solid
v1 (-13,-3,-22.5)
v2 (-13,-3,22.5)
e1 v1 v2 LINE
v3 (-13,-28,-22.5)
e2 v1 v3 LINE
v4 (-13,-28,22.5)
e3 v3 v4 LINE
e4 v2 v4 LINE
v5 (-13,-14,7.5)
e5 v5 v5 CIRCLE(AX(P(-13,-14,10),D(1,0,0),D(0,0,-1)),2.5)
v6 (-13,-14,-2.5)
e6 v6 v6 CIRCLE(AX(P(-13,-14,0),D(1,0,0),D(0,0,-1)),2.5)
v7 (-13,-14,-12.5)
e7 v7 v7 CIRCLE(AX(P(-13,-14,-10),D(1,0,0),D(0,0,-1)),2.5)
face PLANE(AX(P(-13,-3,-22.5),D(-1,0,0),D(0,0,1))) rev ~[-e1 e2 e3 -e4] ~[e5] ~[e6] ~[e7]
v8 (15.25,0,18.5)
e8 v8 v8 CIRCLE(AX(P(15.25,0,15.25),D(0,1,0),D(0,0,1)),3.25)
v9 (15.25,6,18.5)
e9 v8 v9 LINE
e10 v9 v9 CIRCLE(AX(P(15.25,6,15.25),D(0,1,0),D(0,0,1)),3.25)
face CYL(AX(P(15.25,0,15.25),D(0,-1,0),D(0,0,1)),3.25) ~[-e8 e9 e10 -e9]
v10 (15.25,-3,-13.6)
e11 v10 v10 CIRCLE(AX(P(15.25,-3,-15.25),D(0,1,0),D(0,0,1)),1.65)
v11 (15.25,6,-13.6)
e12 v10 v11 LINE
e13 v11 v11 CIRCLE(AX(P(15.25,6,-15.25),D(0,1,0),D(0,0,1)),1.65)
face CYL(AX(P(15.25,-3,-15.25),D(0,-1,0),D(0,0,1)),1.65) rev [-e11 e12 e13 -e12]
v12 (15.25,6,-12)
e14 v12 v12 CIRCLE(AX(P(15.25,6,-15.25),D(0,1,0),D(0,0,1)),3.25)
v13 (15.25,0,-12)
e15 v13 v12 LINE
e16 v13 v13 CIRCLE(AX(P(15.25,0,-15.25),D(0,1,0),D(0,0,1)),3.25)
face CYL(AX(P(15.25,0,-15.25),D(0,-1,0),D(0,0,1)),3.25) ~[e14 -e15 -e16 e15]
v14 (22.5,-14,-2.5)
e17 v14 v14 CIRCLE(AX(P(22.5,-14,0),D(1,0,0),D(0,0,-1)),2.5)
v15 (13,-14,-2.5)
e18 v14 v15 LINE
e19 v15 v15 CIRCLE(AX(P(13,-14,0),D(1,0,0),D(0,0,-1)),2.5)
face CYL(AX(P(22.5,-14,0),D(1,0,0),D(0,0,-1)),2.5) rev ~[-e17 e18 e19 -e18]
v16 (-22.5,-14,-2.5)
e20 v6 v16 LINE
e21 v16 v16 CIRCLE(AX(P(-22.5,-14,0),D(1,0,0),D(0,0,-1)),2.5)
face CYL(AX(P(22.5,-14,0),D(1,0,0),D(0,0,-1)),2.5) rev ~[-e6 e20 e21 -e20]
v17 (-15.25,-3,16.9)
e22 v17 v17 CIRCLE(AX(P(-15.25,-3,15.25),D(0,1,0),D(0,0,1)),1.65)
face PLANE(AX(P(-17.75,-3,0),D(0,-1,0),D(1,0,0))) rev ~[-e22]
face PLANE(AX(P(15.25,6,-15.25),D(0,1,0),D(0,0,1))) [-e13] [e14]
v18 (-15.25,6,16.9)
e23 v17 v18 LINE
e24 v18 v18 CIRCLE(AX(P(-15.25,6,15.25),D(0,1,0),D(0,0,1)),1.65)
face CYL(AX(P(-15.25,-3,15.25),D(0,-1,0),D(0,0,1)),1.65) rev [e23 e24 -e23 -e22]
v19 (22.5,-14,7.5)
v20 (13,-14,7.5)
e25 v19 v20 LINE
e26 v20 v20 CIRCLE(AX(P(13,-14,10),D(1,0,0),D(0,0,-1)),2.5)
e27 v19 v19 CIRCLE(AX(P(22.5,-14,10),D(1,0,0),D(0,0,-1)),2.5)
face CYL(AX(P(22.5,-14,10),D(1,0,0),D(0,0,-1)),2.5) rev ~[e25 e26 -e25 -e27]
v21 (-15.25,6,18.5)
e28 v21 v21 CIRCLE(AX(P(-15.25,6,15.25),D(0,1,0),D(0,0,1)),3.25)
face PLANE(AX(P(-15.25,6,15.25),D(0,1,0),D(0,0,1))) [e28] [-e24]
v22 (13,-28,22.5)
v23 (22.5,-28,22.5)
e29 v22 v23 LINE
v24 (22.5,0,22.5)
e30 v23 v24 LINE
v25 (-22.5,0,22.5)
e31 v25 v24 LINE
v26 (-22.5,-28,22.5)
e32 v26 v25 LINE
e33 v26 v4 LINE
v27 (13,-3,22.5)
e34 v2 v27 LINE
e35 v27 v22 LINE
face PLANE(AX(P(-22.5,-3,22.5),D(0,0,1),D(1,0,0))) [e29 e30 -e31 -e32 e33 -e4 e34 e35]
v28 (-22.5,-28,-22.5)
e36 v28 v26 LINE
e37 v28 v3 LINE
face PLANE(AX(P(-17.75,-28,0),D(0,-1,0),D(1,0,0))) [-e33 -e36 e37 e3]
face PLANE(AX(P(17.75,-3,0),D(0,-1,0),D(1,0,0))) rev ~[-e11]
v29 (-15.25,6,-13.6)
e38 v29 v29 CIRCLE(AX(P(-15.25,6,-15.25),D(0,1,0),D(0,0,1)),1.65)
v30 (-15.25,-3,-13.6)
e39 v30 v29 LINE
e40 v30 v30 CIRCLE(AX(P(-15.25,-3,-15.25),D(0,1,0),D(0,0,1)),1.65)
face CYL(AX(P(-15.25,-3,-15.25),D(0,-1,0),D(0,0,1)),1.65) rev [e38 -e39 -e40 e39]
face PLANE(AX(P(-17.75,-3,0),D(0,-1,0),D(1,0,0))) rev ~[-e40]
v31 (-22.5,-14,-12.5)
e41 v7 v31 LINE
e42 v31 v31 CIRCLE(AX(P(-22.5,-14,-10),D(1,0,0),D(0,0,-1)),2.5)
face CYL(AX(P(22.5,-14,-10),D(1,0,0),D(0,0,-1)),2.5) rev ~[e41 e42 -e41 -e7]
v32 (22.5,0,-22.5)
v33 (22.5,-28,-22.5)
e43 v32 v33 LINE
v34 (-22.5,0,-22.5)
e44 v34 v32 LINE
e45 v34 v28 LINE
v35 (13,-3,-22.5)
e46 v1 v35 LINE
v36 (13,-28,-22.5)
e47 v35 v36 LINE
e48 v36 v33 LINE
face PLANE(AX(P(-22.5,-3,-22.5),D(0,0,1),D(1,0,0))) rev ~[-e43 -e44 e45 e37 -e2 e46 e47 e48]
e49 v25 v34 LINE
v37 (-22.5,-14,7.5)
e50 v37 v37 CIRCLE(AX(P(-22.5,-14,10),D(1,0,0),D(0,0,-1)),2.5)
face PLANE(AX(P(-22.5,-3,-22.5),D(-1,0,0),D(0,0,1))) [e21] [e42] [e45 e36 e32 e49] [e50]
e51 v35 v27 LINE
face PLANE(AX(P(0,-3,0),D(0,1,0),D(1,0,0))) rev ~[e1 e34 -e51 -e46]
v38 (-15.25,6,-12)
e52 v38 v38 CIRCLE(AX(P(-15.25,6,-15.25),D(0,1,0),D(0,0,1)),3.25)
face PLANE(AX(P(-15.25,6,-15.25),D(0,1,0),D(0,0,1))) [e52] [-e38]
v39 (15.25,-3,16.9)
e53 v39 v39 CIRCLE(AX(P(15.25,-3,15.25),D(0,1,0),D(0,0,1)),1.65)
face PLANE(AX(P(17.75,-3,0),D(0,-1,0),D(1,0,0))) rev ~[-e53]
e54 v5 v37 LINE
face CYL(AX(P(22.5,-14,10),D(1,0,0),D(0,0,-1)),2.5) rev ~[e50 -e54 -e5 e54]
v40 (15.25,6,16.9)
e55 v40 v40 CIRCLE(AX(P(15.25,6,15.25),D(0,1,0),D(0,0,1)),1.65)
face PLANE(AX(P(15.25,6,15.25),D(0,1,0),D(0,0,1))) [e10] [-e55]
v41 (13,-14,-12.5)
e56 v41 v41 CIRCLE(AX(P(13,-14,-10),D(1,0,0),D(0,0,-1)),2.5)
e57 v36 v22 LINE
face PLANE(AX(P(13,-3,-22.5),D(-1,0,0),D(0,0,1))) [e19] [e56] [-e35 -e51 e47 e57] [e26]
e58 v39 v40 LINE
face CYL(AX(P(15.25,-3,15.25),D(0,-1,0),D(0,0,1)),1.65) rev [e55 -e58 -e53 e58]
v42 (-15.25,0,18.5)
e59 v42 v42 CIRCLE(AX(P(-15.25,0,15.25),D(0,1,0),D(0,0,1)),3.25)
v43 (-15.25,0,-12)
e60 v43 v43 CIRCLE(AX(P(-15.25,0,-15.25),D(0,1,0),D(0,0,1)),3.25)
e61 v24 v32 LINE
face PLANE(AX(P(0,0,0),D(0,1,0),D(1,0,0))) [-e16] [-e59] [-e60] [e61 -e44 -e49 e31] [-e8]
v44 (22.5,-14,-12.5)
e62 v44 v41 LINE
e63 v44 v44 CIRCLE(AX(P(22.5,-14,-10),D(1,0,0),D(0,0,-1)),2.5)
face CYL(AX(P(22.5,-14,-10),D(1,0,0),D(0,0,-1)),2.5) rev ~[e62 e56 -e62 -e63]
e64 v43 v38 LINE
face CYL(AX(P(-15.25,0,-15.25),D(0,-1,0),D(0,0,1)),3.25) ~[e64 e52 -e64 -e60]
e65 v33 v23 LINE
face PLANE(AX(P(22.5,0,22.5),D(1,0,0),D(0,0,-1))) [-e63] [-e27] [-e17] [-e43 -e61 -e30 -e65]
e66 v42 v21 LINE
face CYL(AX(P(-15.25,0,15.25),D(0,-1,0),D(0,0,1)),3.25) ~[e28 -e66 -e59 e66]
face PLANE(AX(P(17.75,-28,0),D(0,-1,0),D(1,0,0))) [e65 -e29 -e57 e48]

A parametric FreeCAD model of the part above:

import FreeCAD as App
import Part
import Sketcher

V = App.Vector
Q = App.Units.Quantity


def add_polygon(sketch, points):
    """Adds a closed chain of lines whose ends are joined by coincident constraints."""
    first, n = sketch.GeometryCount, len(points)
    for a, b in zip(points, points[1:] + points[:1]):
        sketch.addGeometry(Part.LineSegment(App.Vector(*a, 0), App.Vector(*b, 0)), False)
    for i in range(n):
        sketch.addConstraint(Sketcher.Constraint("Coincident", first + i, 2, first + (i + 1) % n, 1))

doc = App.newDocument("Part")
params = doc.addObject("Spreadsheet::Sheet", "Params")
for row, (alias, value) in enumerate([
    ("sketch1_diameter", "6.5 mm"),
    ("sketch1_diameter2", "3.3 mm"),
    ("pad1_length", "6 mm"),
    ("sketch2_diameter", "6.5 mm"),
    ("sketch2_diameter2", "3.3 mm"),
    ("pad2_length", "6 mm"),
    ("sketch3_diameter", "6.5 mm"),
    ("sketch3_diameter2", "3.3 mm"),
    ("pad3_length", "6 mm"),
    ("sketch4_diameter", "6.5 mm"),
    ("sketch4_diameter2", "3.3 mm"),
    ("pad4_length", "6 mm"),
    ("sketch5_width", "45 mm"),
    ("pad5_length", "3 mm"),
    ("sketch6_diameter", "3.3 mm"),
    ("pocket1_length", "3 mm"),
    ("sketch7_height", "45 mm"),
    ("sketch7_width", "9.5 mm"),
    ("pad6_length", "25 mm"),
    ("sketch8_diameter", "5 mm"),
], start=1):
    params.set(f"A{row}", alias)
    params.set(f"B{row}", "=" + value)
    params.setAlias(f"B{row}", alias)

body = doc.addObject("PartDesign::Body", "Body")

# Sketch on XZ plane
sketch1 = body.newObject("Sketcher::SketchObject", "Sketch")
sketch1.AttachmentSupport = (doc.getObject("XZ_Plane"), [""])
sketch1.MapMode = "FlatFace"
sketch1.addGeometry(Part.Circle(V(-15.25, -15.25, 0), V(0, 0, 1), 3.25), False)
sketch1.addGeometry(Part.Circle(V(-15.25, -15.25, 0), V(0, 0, 1), 1.65), False)
sketch1.addConstraint(Sketcher.Constraint("Coincident", 1, 3, 0, 3))
sketch1.addConstraint(Sketcher.Constraint("Diameter", 0, Q("6.5 mm")))
sketch1.addConstraint(Sketcher.Constraint("Diameter", 1, Q("3.3 mm")))
sketch1.addConstraint(Sketcher.Constraint("DistanceX", 0, 3, -1, 1, Q("15.25 mm")))
sketch1.addConstraint(Sketcher.Constraint("DistanceY", 0, 3, -1, 1, Q("15.25 mm")))
sketch1.setExpression("Constraints[1]", "Params.sketch1_diameter")
sketch1.setExpression("Constraints[2]", "Params.sketch1_diameter2")
pad1 = body.newObject("PartDesign::Pad", "Pad")
pad1.Profile = sketch1
pad1.setExpression("Length", "Params.pad1_length")
pad1.Reversed = True
body2 = doc.addObject("PartDesign::Body", "Body001")

# Sketch on XZ plane
sketch2 = body2.newObject("Sketcher::SketchObject", "Sketch001")
sketch2.AttachmentSupport = (doc.getObject("XZ_Plane001"), [""])
sketch2.MapMode = "FlatFace"
sketch2.addGeometry(Part.Circle(V(15.25, -15.25, 0), V(0, 0, 1), 3.25), False)
sketch2.addGeometry(Part.Circle(V(15.25, -15.25, 0), V(0, 0, 1), 1.65), False)
sketch2.addConstraint(Sketcher.Constraint("Coincident", 1, 3, 0, 3))
sketch2.addConstraint(Sketcher.Constraint("Diameter", 0, Q("6.5 mm")))
sketch2.addConstraint(Sketcher.Constraint("Diameter", 1, Q("3.3 mm")))
sketch2.addConstraint(Sketcher.Constraint("DistanceX", -1, 1, 0, 3, Q("15.25 mm")))
sketch2.addConstraint(Sketcher.Constraint("DistanceY", 0, 3, -1, 1, Q("15.25 mm")))
sketch2.setExpression("Constraints[1]", "Params.sketch2_diameter")
sketch2.setExpression("Constraints[2]", "Params.sketch2_diameter2")
pad2 = body2.newObject("PartDesign::Pad", "Pad001")
pad2.Profile = sketch2
pad2.setExpression("Length", "Params.pad2_length")
pad2.Reversed = True
body3 = doc.addObject("PartDesign::Body", "Body002")

# Sketch on XZ plane
sketch3 = body3.newObject("Sketcher::SketchObject", "Sketch002")
sketch3.AttachmentSupport = (doc.getObject("XZ_Plane002"), [""])
sketch3.MapMode = "FlatFace"
sketch3.addGeometry(Part.Circle(V(15.25, 15.25, 0), V(0, 0, 1), 3.25), False)
sketch3.addGeometry(Part.Circle(V(15.25, 15.25, 0), V(0, 0, 1), 1.65), False)
sketch3.addConstraint(Sketcher.Constraint("Coincident", 1, 3, 0, 3))
sketch3.addConstraint(Sketcher.Constraint("Diameter", 0, Q("6.5 mm")))
sketch3.addConstraint(Sketcher.Constraint("Diameter", 1, Q("3.3 mm")))
sketch3.addConstraint(Sketcher.Constraint("DistanceX", -1, 1, 0, 3, Q("15.25 mm")))
sketch3.addConstraint(Sketcher.Constraint("DistanceY", -1, 1, 0, 3, Q("15.25 mm")))
sketch3.setExpression("Constraints[1]", "Params.sketch3_diameter")
sketch3.setExpression("Constraints[2]", "Params.sketch3_diameter2")
pad3 = body3.newObject("PartDesign::Pad", "Pad002")
pad3.Profile = sketch3
pad3.setExpression("Length", "Params.pad3_length")
pad3.Reversed = True
body4 = doc.addObject("PartDesign::Body", "Body003")

# Sketch on XZ plane
sketch4 = body4.newObject("Sketcher::SketchObject", "Sketch003")
sketch4.AttachmentSupport = (doc.getObject("XZ_Plane003"), [""])
sketch4.MapMode = "FlatFace"
sketch4.addGeometry(Part.Circle(V(-15.25, 15.25, 0), V(0, 0, 1), 3.25), False)
sketch4.addGeometry(Part.Circle(V(-15.25, 15.25, 0), V(0, 0, 1), 1.65), False)
sketch4.addConstraint(Sketcher.Constraint("Coincident", 1, 3, 0, 3))
sketch4.addConstraint(Sketcher.Constraint("Diameter", 0, Q("6.5 mm")))
sketch4.addConstraint(Sketcher.Constraint("Diameter", 1, Q("3.3 mm")))
sketch4.addConstraint(Sketcher.Constraint("DistanceX", 0, 3, -1, 1, Q("15.25 mm")))
sketch4.addConstraint(Sketcher.Constraint("DistanceY", -1, 1, 0, 3, Q("15.25 mm")))
sketch4.setExpression("Constraints[1]", "Params.sketch4_diameter")
sketch4.setExpression("Constraints[2]", "Params.sketch4_diameter2")
pad4 = body4.newObject("PartDesign::Pad", "Pad003")
pad4.Profile = sketch4
pad4.setExpression("Length", "Params.pad4_length")
pad4.Reversed = True
body.AllowCompound = True
doc.recompute()

boolean = body.newObject("PartDesign::Boolean", "Boolean")
boolean.Type = "Fuse"
boolean.addObjects([body2])
doc.recompute()

boolean2 = body.newObject("PartDesign::Boolean", "Boolean001")
boolean2.Type = "Fuse"
boolean2.addObjects([body3])
doc.recompute()

boolean3 = body.newObject("PartDesign::Boolean", "Boolean002")
boolean3.Type = "Fuse"
boolean3.addObjects([body4])

# Sketch on XZ plane
sketch5 = body.newObject("Sketcher::SketchObject", "Sketch004")
sketch5.AttachmentSupport = (doc.getObject("XZ_Plane"), [""])
sketch5.MapMode = "FlatFace"
add_polygon(sketch5, [(-22.5, -22.5), (-22.5, 22.5), (22.5, 22.5), (22.5, -22.5)])  # lines 0-3
sketch5.addConstraint(Sketcher.Constraint("Vertical", 0))
sketch5.addConstraint(Sketcher.Constraint("Horizontal", 1))
sketch5.addConstraint(Sketcher.Constraint("Vertical", 2))
sketch5.addConstraint(Sketcher.Constraint("Horizontal", 3))
sketch5.addConstraint(Sketcher.Constraint("Symmetric", 0, 2, 2, 2, -1, 1))
sketch5.addConstraint(Sketcher.Constraint("Equal", 3, 0))
sketch5.addConstraint(Sketcher.Constraint("DistanceX", 1, 1, 1, 2, Q("45 mm")))
sketch5.setExpression("Constraints[10]", "Params.sketch5_width")
pad5 = body.newObject("PartDesign::Pad", "Pad004")
pad5.Profile = sketch5
pad5.setExpression("Length", "Params.pad5_length")

# Sketch on XZ plane
sketch6 = body.newObject("Sketcher::SketchObject", "Sketch005")
sketch6.AttachmentSupport = (doc.getObject("XZ_Plane"), [""])
sketch6.MapMode = "FlatFace"
sketch6.AttachmentOffset = App.Placement(V(0, 0, 3), App.Rotation())
sketch6.addGeometry(Part.Circle(V(-15.25, -15.25, 0), V(0, 0, 1), 1.65), False)
sketch6.addGeometry(Part.Circle(V(-15.25, 15.25, 0), V(0, 0, 1), 1.65), False)
sketch6.addGeometry(Part.Circle(V(15.25, 15.25, 0), V(0, 0, 1), 1.65), False)
sketch6.addGeometry(Part.Circle(V(15.25, -15.25, 0), V(0, 0, 1), 1.65), False)
sketch6.addConstraint(Sketcher.Constraint("Equal", 0, 1))
sketch6.addConstraint(Sketcher.Constraint("Equal", 1, 2))
sketch6.addConstraint(Sketcher.Constraint("Equal", 2, 3))
sketch6.addConstraint(Sketcher.Constraint("Symmetric", 0, 3, 2, 3, -1, 1))
sketch6.addConstraint(Sketcher.Constraint("Symmetric", 1, 3, 3, 3, -1, 1))
sketch6.addConstraint(Sketcher.Constraint("Symmetric", 1, 3, 2, 3, -2))
sketch6.addConstraint(Sketcher.Constraint("Diameter", 0, Q("3.3 mm")))
sketch6.addConstraint(Sketcher.Constraint("DistanceY", 0, 3, 1, 3, Q("30.5 mm")))
sketch6.addConstraint(Sketcher.Constraint("DistanceX", 1, 3, 2, 3, Q("30.5 mm")))
sketch6.setExpression("Constraints[6]", "Params.sketch6_diameter")
pocket1 = body.newObject("PartDesign::Pocket", "Pocket")
pocket1.Profile = sketch6
pocket1.setExpression("Length", "Params.pocket1_length")

# Sketch on XZ plane
sketch7 = body.newObject("Sketcher::SketchObject", "Sketch006")
sketch7.AttachmentSupport = (doc.getObject("XZ_Plane"), [""])
sketch7.MapMode = "FlatFace"
sketch7.AttachmentOffset = App.Placement(V(0, 0, 3), App.Rotation())
add_polygon(sketch7, [(-22.5, 22.5), (-22.5, -22.5), (-13, -22.5), (-13, 22.5)])  # lines 0-3
add_polygon(sketch7, [(13, 22.5), (13, -22.5), (22.5, -22.5), (22.5, 22.5)])  # lines 4-7
sketch7.addConstraint(Sketcher.Constraint("Vertical", 0))
sketch7.addConstraint(Sketcher.Constraint("Horizontal", 1))
sketch7.addConstraint(Sketcher.Constraint("Vertical", 2))
sketch7.addConstraint(Sketcher.Constraint("Horizontal", 3))
sketch7.addConstraint(Sketcher.Constraint("Vertical", 4))
sketch7.addConstraint(Sketcher.Constraint("Horizontal", 5))
sketch7.addConstraint(Sketcher.Constraint("Vertical", 6))
sketch7.addConstraint(Sketcher.Constraint("Horizontal", 7))
sketch7.addConstraint(Sketcher.Constraint("Symmetric", 2, 2, 4, 2, -1, 1))
sketch7.addConstraint(Sketcher.Constraint("Symmetric", 0, 2, 6, 2, -1, 1))
sketch7.addConstraint(Sketcher.Constraint("Horizontal", 1, 2, 4, 2))
sketch7.addConstraint(Sketcher.Constraint("DistanceY", 0, 2, 0, 1, Q("45 mm")))
sketch7.addConstraint(Sketcher.Constraint("DistanceX", 1, 1, 1, 2, Q("9.5 mm")))
sketch7.addConstraint(Sketcher.Constraint("DistanceX", 1, 2, -1, 1, Q("13 mm")))
sketch7.setExpression("Constraints[19]", "Params.sketch7_height")
sketch7.setExpression("Constraints[20]", "Params.sketch7_width")
pad6 = body.newObject("PartDesign::Pad", "Pad005")
pad6.Profile = sketch7
pad6.setExpression("Length", "Params.pad6_length")

# Sketch on YZ plane
sketch8 = body.newObject("Sketcher::SketchObject", "Sketch007")
sketch8.AttachmentSupport = (doc.getObject("YZ_Plane"), [""])
sketch8.MapMode = "FlatFace"
sketch8.AttachmentOffset = App.Placement(V(0, 0, 22.5), App.Rotation())
sketch8.addGeometry(Part.Circle(V(-14, 0, 0), V(0, 0, 1), 2.5), False)
sketch8.addGeometry(Part.Circle(V(-14, 10, 0), V(0, 0, 1), 2.5), False)
sketch8.addGeometry(Part.Circle(V(-14, -10, 0), V(0, 0, 1), 2.5), False)
sketch8.addConstraint(Sketcher.Constraint("Equal", 0, 1))
sketch8.addConstraint(Sketcher.Constraint("Equal", 1, 2))
sketch8.addConstraint(Sketcher.Constraint("Symmetric", 1, 3, 2, 3, -1))
sketch8.addConstraint(Sketcher.Constraint("PointOnObject", 0, 3, -1))
sketch8.addConstraint(Sketcher.Constraint("Vertical", 0, 3, 1, 3))
sketch8.addConstraint(Sketcher.Constraint("Diameter", 0, Q("5 mm")))
sketch8.addConstraint(Sketcher.Constraint("DistanceX", 0, 3, -1, 1, Q("14 mm")))
sketch8.addConstraint(Sketcher.Constraint("DistanceY", -1, 1, 1, 3, Q("10 mm")))
sketch8.setExpression("Constraints[5]", "Params.sketch8_diameter")
pocket2 = body.newObject("PartDesign::Pocket", "Pocket001")
pocket2.Profile = sketch8
pocket2.Type = "ThroughAll"

doc.recompute()
